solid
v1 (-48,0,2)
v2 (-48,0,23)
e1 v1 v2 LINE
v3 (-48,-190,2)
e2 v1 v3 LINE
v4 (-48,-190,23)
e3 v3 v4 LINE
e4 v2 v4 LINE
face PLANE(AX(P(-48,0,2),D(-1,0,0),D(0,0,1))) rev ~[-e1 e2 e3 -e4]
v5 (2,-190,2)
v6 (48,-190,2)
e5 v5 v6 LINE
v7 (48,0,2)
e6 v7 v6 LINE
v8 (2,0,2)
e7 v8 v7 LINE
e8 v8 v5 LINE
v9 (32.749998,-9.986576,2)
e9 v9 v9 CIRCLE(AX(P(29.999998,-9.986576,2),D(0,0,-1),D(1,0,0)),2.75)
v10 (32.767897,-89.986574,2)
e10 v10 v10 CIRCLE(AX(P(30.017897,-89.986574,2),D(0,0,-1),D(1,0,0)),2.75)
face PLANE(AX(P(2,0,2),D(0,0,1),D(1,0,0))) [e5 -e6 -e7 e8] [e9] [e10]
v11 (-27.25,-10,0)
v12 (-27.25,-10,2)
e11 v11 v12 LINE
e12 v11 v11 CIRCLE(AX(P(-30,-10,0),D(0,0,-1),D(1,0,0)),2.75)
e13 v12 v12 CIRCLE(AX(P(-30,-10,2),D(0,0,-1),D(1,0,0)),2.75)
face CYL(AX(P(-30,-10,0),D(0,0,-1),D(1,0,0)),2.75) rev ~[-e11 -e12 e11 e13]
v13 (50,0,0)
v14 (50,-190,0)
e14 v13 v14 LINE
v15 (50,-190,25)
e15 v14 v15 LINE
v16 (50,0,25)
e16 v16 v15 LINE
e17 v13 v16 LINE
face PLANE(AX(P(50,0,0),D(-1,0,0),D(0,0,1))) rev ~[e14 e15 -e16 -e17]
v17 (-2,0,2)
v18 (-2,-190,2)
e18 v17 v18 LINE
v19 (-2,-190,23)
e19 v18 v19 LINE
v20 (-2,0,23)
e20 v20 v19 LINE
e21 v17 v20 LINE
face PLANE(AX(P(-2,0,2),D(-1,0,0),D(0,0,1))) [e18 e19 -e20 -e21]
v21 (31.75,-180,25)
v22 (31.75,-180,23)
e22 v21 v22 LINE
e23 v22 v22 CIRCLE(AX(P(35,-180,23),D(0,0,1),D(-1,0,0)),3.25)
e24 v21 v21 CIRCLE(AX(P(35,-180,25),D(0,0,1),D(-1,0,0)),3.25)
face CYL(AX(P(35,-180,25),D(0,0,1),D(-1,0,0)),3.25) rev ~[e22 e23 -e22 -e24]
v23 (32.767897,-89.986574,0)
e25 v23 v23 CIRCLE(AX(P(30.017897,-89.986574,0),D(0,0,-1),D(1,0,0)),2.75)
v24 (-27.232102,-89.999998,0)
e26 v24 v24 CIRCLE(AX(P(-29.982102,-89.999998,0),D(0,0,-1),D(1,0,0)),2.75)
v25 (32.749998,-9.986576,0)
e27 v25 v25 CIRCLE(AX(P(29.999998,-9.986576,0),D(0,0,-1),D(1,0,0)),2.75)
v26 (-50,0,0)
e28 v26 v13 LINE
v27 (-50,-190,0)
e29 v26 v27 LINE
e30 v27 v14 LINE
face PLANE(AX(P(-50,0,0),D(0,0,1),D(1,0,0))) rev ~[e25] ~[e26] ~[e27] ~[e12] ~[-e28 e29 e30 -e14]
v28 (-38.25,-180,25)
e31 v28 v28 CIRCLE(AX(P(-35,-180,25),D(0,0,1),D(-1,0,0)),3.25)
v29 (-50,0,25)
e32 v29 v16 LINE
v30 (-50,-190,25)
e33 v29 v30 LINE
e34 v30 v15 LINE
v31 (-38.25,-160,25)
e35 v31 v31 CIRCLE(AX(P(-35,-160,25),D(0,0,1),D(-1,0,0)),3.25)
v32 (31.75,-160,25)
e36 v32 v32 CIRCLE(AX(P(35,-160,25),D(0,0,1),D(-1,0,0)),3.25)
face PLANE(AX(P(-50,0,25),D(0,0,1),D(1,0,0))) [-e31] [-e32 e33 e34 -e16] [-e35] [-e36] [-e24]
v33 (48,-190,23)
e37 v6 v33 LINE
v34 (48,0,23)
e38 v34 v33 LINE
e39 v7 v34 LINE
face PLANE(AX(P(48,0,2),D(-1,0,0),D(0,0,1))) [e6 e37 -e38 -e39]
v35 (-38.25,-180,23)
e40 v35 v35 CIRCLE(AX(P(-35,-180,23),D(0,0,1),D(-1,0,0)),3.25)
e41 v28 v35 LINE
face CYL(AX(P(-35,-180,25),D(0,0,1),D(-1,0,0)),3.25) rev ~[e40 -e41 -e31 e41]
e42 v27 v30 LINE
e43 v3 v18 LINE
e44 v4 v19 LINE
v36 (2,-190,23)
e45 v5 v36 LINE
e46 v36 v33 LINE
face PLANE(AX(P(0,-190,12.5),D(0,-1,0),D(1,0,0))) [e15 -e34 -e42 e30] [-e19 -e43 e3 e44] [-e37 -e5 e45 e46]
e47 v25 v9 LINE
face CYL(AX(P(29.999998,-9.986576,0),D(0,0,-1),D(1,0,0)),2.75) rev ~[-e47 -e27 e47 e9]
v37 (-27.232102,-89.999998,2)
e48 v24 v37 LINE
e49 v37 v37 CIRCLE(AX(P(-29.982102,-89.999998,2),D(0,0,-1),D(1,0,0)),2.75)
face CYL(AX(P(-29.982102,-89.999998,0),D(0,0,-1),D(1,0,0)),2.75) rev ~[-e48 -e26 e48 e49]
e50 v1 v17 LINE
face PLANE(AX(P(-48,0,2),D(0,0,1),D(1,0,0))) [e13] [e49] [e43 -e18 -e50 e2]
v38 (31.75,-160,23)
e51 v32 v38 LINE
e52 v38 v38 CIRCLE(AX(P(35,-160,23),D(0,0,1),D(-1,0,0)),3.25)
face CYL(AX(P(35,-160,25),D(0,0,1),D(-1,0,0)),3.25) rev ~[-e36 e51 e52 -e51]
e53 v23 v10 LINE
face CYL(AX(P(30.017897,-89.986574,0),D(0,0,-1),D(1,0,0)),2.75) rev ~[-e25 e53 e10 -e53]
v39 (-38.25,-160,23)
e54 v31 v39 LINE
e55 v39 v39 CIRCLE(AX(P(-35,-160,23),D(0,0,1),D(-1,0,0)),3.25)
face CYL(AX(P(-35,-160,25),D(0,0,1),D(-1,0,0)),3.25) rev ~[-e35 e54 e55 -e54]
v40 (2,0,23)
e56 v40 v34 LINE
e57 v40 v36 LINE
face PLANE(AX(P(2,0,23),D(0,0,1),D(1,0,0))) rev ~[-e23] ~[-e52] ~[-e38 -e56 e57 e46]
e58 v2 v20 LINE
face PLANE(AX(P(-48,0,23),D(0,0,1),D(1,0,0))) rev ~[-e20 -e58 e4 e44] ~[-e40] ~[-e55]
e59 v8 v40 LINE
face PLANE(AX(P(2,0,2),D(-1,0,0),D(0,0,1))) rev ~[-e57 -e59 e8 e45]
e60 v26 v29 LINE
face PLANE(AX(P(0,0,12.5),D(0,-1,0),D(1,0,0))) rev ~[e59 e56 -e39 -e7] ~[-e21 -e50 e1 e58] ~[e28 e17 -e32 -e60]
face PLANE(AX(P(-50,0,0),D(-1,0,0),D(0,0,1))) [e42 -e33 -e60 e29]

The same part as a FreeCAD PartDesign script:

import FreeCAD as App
import Part
import Sketcher


def add_polygon(sketch, points):
    """Adds a closed chain of lines whose ends are joined by coincident constraints."""
    first, n = sketch.GeometryCount, len(points)
    for a, b in zip(points, points[1:] + points[:1]):
        sketch.addGeometry(Part.LineSegment(App.Vector(*a, 0), App.Vector(*b, 0)), False)
    for i in range(n):
        sketch.addConstraint(Sketcher.Constraint("Coincident", first + i, 2, first + (i + 1) % n, 1))

doc = App.newDocument("Part")
body = doc.addObject("PartDesign::Body", "Body")

sketch1 = body.newObject("Sketcher::SketchObject", "Sketch")
sketch1.AttachmentSupport = (doc.getObject("XZ_Plane"), [""])
sketch1.MapMode = "FlatFace"
add_polygon(sketch1, [(-50, 25), (-50, 0), (50, 0), (50, 25)])
add_polygon(sketch1, [(-2, 2), (-48, 2), (-48, 23), (-2, 23)])
add_polygon(sketch1, [(48, 2), (2, 2), (2, 23), (48, 23)])
sketch1.addConstraint([
    Sketcher.Constraint("Vertical", 0),
    Sketcher.Constraint("Horizontal", 1),
    Sketcher.Constraint("Vertical", 2),
    Sketcher.Constraint("Horizontal", 3),
    Sketcher.Constraint("Horizontal", 4),
    Sketcher.Constraint("Vertical", 5),
    Sketcher.Constraint("Horizontal", 6),
    Sketcher.Constraint("Vertical", 7),
    Sketcher.Constraint("Horizontal", 8),
    Sketcher.Constraint("Vertical", 9),
    Sketcher.Constraint("Horizontal", 10),
    Sketcher.Constraint("Vertical", 11),
    Sketcher.Constraint("Symmetric", 0, 2, 1, 2, -1, 1),
    Sketcher.Constraint("Symmetric", 7, 2, 8, 2, -2),
    Sketcher.Constraint("Symmetric", 5, 2, 10, 2, -2),
    Sketcher.Constraint("DistanceX", 1, 1, 1, 2, 100.0),
    Sketcher.Constraint("DistanceX", 4, 2, 4, 1, 46.0),
    Sketcher.Constraint("DistanceY", 0, 2, 0, 1, 25.0),
    Sketcher.Constraint("DistanceY", 5, 1, 5, 2, 21.0),
    Sketcher.Constraint("DistanceX", 4, 2, -1, 1, 48.0),
    Sketcher.Constraint("DistanceY", -1, 1, 4, 2, 2.0),
])
pad1 = body.newObject("PartDesign::Pad", "Pad")
pad1.Profile = sketch1
pad1.Length = 190

sketch2 = body.newObject("Sketcher::SketchObject", "Sketch001")
sketch2.AttachmentSupport = (doc.getObject("XY_Plane"), [""])
sketch2.MapMode = "FlatFace"
sketch2.addGeometry([
    Part.Circle(App.Vector(-30, -90, 0), App.Vector(0, 0, 1), 2.8),
    Part.Circle(App.Vector(30, -90, 0), App.Vector(0, 0, 1), 2.8),
    Part.Circle(App.Vector(-30, -10, 0), App.Vector(0, 0, 1), 2.8),
    Part.Circle(App.Vector(30, -10, 0), App.Vector(0, 0, 1), 2.8),
], False)
sketch2.addConstraint([
    Sketcher.Constraint("Equal", 0, 1),
    Sketcher.Constraint("Equal", 1, 2),
    Sketcher.Constraint("Equal", 2, 3),
    Sketcher.Constraint("Diameter", 0, 5.5),
    Sketcher.Constraint("DistanceY", 0, 3, -1, 1, 89.999998),
    Sketcher.Constraint("DistanceX", 2, 3, -1, 1, 30.0),
    Sketcher.Constraint("DistanceY", 2, 3, -1, 1, 10.0),
    Sketcher.Constraint("DistanceX", -1, 1, 3, 3, 29.999998),
    Sketcher.Constraint("DistanceX", 0, 3, 1, 3, 59.999999),
    Sketcher.Constraint("DistanceY", 1, 3, 3, 3, 79.999998),
    Sketcher.Constraint("DistanceX", 3, 3, 1, 3, 0.017899),
    Sketcher.Constraint("DistanceY", 1, 3, -1, 1, 89.986574),
])
pocket1 = body.newObject("PartDesign::Pocket", "Pocket")
pocket1.Profile = sketch2
pocket1.Length = 2
pocket1.Reversed = True

sketch3 = body.newObject("Sketcher::SketchObject", "Sketch002")
sketch3.AttachmentSupport = (doc.getObject("XY_Plane"), [""])
sketch3.MapMode = "FlatFace"
sketch3.AttachmentOffset = App.Placement(App.Vector(0, 0, 25), App.Rotation())
sketch3.addGeometry([
    Part.Circle(App.Vector(35, -180, 0), App.Vector(0, 0, 1), 3.2),
    Part.Circle(App.Vector(-35, -180, 0), App.Vector(0, 0, 1), 3.2),
    Part.Circle(App.Vector(35, -160, 0), App.Vector(0, 0, 1), 3.2),
    Part.Circle(App.Vector(-35, -160, 0), App.Vector(0, 0, 1), 3.2),
], False)
sketch3.addConstraint([
    Sketcher.Constraint("Equal", 0, 1),
    Sketcher.Constraint("Equal", 1, 2),
    Sketcher.Constraint("Equal", 2, 3),
    Sketcher.Constraint("Symmetric", 0, 3, 1, 3, -2),
    Sketcher.Constraint("Symmetric", 2, 3, 3, 3, -2),
    Sketcher.Constraint("Vertical", 0, 3, 2, 3),
    Sketcher.Constraint("Diameter", 0, 6.5),
    Sketcher.Constraint("DistanceX", -1, 1, 0, 3, 35.0),
    Sketcher.Constraint("DistanceY", 0, 3, -1, 1, 180.0),
    Sketcher.Constraint("DistanceY", 2, 3, -1, 1, 160.0),
])
pocket2 = body.newObject("PartDesign::Pocket", "Pocket001")
pocket2.Profile = sketch3
pocket2.Length = 2

doc.recompute()
